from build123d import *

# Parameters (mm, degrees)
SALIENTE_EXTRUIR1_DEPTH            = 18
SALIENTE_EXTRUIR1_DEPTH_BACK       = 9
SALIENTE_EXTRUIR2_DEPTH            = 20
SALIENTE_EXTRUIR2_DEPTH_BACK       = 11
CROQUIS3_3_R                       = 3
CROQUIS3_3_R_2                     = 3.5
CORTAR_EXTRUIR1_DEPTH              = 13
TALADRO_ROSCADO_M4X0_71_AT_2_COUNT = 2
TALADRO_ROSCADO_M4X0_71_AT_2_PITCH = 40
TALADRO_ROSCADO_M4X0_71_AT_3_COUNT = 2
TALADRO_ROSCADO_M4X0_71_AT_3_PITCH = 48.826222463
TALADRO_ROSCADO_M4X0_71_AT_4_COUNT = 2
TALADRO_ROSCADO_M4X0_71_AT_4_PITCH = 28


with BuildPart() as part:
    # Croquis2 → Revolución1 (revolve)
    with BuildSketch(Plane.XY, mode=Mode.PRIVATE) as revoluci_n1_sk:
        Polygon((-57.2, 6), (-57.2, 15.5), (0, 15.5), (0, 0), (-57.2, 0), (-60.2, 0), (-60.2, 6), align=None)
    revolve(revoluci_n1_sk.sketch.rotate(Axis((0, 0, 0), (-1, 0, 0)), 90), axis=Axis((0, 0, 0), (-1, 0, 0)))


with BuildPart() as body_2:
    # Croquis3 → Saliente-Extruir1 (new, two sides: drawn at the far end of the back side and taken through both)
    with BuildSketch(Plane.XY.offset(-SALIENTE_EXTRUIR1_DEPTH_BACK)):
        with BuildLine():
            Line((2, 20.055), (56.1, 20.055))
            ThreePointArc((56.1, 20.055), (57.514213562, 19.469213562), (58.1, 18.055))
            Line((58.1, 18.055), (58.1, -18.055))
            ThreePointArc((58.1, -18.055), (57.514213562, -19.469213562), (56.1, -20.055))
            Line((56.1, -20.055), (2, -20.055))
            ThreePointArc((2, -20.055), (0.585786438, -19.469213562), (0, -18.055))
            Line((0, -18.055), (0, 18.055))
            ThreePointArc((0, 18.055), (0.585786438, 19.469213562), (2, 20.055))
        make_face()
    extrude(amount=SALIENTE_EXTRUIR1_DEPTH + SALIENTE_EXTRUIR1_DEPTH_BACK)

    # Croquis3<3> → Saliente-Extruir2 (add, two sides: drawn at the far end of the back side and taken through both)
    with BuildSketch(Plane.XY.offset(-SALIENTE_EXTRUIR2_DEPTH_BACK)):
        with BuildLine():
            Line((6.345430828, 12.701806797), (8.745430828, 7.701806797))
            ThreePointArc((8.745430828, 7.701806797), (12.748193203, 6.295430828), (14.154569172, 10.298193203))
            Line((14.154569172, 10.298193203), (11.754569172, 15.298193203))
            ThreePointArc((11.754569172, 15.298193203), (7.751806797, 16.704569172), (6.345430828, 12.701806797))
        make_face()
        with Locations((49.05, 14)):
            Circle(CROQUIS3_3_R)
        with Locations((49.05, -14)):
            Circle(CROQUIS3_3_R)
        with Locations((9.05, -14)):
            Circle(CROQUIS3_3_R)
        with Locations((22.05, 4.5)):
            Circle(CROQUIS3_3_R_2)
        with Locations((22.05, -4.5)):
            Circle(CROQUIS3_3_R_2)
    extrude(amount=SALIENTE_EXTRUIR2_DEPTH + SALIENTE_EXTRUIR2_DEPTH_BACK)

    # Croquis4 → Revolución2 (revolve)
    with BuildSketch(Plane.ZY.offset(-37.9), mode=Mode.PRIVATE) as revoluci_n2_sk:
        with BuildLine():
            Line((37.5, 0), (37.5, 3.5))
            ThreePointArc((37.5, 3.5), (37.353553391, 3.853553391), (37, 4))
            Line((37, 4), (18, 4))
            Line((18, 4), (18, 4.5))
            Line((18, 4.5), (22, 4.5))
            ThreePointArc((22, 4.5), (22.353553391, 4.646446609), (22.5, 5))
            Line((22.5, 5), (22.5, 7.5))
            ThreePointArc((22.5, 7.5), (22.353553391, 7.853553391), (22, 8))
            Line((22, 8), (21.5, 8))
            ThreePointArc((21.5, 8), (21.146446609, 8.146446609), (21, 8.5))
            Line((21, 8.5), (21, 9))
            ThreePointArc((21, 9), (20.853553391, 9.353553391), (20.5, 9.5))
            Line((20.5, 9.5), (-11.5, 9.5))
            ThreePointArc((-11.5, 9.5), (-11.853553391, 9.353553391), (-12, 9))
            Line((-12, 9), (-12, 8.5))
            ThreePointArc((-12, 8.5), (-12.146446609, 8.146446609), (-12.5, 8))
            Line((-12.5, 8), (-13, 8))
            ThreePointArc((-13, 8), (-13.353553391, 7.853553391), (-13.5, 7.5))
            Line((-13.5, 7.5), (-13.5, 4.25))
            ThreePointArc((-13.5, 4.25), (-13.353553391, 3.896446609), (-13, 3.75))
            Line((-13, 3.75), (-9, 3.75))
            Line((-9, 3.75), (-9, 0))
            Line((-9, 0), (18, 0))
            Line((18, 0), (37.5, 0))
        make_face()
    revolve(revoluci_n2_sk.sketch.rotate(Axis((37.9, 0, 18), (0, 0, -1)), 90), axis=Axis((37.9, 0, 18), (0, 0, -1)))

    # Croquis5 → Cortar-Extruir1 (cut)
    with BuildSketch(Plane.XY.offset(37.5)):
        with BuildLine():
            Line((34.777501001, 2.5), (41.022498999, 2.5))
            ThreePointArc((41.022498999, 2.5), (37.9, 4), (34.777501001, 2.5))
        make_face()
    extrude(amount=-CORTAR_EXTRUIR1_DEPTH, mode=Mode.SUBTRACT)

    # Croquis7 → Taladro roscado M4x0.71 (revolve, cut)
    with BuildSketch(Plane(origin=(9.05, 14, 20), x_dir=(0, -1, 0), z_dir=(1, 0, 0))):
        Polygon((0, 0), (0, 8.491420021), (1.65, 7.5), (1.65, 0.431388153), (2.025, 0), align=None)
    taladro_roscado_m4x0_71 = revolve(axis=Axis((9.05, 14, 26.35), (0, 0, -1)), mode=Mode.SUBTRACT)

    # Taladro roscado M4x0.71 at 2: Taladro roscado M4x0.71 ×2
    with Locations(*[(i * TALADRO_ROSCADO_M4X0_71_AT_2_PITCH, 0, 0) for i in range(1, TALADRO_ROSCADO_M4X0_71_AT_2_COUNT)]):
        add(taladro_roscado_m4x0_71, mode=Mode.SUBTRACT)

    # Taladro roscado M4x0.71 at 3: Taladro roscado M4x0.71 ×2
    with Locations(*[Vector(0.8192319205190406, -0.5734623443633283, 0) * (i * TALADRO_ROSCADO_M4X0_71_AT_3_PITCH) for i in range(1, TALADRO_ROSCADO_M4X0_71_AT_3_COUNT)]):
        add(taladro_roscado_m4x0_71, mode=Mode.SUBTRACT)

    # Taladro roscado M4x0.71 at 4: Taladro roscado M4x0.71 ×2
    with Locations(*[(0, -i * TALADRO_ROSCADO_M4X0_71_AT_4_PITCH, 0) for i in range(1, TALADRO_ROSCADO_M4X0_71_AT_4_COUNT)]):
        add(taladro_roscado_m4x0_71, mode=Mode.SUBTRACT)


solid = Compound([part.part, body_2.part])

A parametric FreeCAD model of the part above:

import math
import FreeCAD as App
import Part
import Sketcher
Q = App.Units.Quantity


def add_polygon(sketch, points):
    """Adds a closed chain of lines whose ends are joined by coincident constraints."""
    first, n = sketch.GeometryCount, len(points)
    for a, b in zip(points, points[1:] + points[:1]):
        sketch.addGeometry(Part.LineSegment(App.Vector(*a, 0), App.Vector(*b, 0)), False)
    for i in range(n):
        sketch.addConstraint(Sketcher.Constraint("Coincident", first + i, 2, first + (i + 1) % n, 1))

doc = App.newDocument("Part")
body = doc.addObject("PartDesign::Body", "Body")

# Sketch on XY plane
sketch1 = body.newObject("Sketcher::SketchObject", "Sketch")
sketch1.AttachmentSupport = (doc.getObject("XY_Plane"), [""])
sketch1.MapMode = "FlatFace"
add_polygon(sketch1, [(-57.2, 15.5), (-57.2, 6), (-60.2, 6), (-60.2, 0), (0, 0), (0, 15.5)])  # lines 0-5
sketch1.addConstraint([
    Sketcher.Constraint("Vertical", 0),
    Sketcher.Constraint("Horizontal", 1),
    Sketcher.Constraint("Vertical", 2),
    Sketcher.Constraint("Horizontal", 3),
    Sketcher.Constraint("Vertical", 4),
    Sketcher.Constraint("Horizontal", 5),
    Sketcher.Constraint("Coincident", 3, 2, -1, 1),
    Sketcher.Constraint("DistanceX", 1, 2, 1, 1, Q("3 mm")),
    Sketcher.Constraint("DistanceY", 2, 2, 2, 1, Q("6 mm")),
    Sketcher.Constraint("DistanceX", 3, 1, 3, 2, Q("60.2 mm")),
    Sketcher.Constraint("DistanceY", 0, 2, 0, 1, Q("9.5 mm")),
])
revolution = body.newObject("PartDesign::Revolution", "Revolution")
revolution.Profile = sketch1
revolution.ReferenceAxis = (sketch1, ["H_Axis"])
revolution.Angle = 360
body2 = doc.addObject("PartDesign::Body", "Body001")

# Sketch on XY plane
sketch2 = body2.newObject("Sketcher::SketchObject", "Sketch001")
sketch2.AttachmentSupport = (doc.getObject("XY_Plane001"), [""])
sketch2.MapMode = "FlatFace"
sketch2.addGeometry([
    Part.LineSegment(App.Vector(56.1, 20.1, 0), App.Vector(2, 20.1, 0)),  # 0
    Part.ArcOfCircle(Part.Circle(App.Vector(2, 18.1, 0), App.Vector(0, 0, 1), 2), math.radians(90), math.radians(180)),  # 1
    Part.LineSegment(App.Vector(0, 18.1, 0), App.Vector(0, -18.1, 0)),  # 2
    Part.ArcOfCircle(Part.Circle(App.Vector(2, -18.1, 0), App.Vector(0, 0, 1), 2), math.radians(-180), math.radians(-90)),  # 3
    Part.LineSegment(App.Vector(2, -20.1, 0), App.Vector(56.1, -20.1, 0)),  # 4
    Part.ArcOfCircle(Part.Circle(App.Vector(56.1, -18.1, 0), App.Vector(0, 0, 1), 2), math.radians(-90), math.radians(0)),  # 5
    Part.LineSegment(App.Vector(58.1, -18.1, 0), App.Vector(58.1, 18.1, 0)),  # 6
    Part.ArcOfCircle(Part.Circle(App.Vector(56.1, 18.1, 0), App.Vector(0, 0, 1), 2), math.radians(0), math.radians(90)),  # 7
], False)
sketch2.addConstraint([
    Sketcher.Constraint("Tangent", 0, 2, 1, 1),
    Sketcher.Constraint("Tangent", 1, 2, 2, 1),
    Sketcher.Constraint("Tangent", 2, 2, 3, 1),
    Sketcher.Constraint("Tangent", 3, 2, 4, 1),
    Sketcher.Constraint("Tangent", 4, 2, 5, 1),
    Sketcher.Constraint("Tangent", 5, 2, 6, 1),
    Sketcher.Constraint("Tangent", 6, 2, 7, 1),
    Sketcher.Constraint("Tangent", 7, 2, 0, 1),
    Sketcher.Constraint("Horizontal", 0),
    Sketcher.Constraint("Vertical", 2),
    Sketcher.Constraint("Horizontal", 4),
    Sketcher.Constraint("Vertical", 6),
    Sketcher.Constraint("Equal", 1, 3),
    Sketcher.Constraint("Equal", 3, 5),
    Sketcher.Constraint("Equal", 5, 7),
    Sketcher.Constraint("Symmetric", 1, 2, 2, 2, -1, 1),
    Sketcher.Constraint("Radius", 1, Q("2 mm")),
    Sketcher.Constraint("DistanceX", 0, 2, 0, 1, Q("54.1 mm")),
    Sketcher.Constraint("DistanceY", 2, 2, 2, 1, Q("36.11 mm")),
])
pad1 = body2.newObject("PartDesign::Pad", "Pad")
pad1.Profile = sketch2
pad1.Type = "TwoLengths"
pad1.Length = 18
pad1.Length2 = 9

# Sketch on XY plane
sketch3 = body2.newObject("Sketcher::SketchObject", "Sketch002")
sketch3.AttachmentSupport = (doc.getObject("XY_Plane001"), [""])
sketch3.MapMode = "FlatFace"
sketch3.addGeometry([
    Part.LineSegment(App.Vector(6.3, 12.7, 0), App.Vector(8.7, 7.7, 0)),  # 0
    Part.ArcOfCircle(Part.Circle(App.Vector(11.4, 9, 0), App.Vector(0, 0, 1), 3), math.radians(-154), math.radians(26)),  # 1
    Part.LineSegment(App.Vector(14.2, 10.3, 0), App.Vector(11.8, 15.3, 0)),  # 2
    Part.ArcOfCircle(Part.Circle(App.Vector(9.1, 14, 0), App.Vector(0, 0, 1), 3), math.radians(26), math.radians(206)),  # 3
    Part.Circle(App.Vector(49, 14, 0), App.Vector(0, 0, 1), 3),  # 4
    Part.Circle(App.Vector(49, -14, 0), App.Vector(0, 0, 1), 3),  # 5
    Part.Circle(App.Vector(9.1, -14, 0), App.Vector(0, 0, 1), 3),  # 6
    Part.Circle(App.Vector(22.1, 4.5, 0), App.Vector(0, 0, 1), 3.5),  # 7
    Part.Circle(App.Vector(22.1, -4.5, 0), App.Vector(0, 0, 1), 3.5),  # 8
], False)
sketch3.addConstraint([
    Sketcher.Constraint("Tangent", 0, 2, 1, 1),
    Sketcher.Constraint("Tangent", 1, 2, 2, 1),
    Sketcher.Constraint("Tangent", 2, 2, 3, 1),
    Sketcher.Constraint("Tangent", 3, 2, 0, 1),
    Sketcher.Constraint("Equal", 1, 3),
    Sketcher.Constraint("Equal", 3, 4),
    Sketcher.Constraint("Equal", 4, 5),
    Sketcher.Constraint("Equal", 5, 6),
    Sketcher.Constraint("Equal", 7, 8),
    Sketcher.Constraint("Symmetric", 4, 3, 5, 3, -1),
    Sketcher.Constraint("Symmetric", 3, 3, 6, 3, -1),
    Sketcher.Constraint("Symmetric", 7, 3, 8, 3, -1),
    Sketcher.Constraint("Horizontal", 3, 3, 4, 3),
    Sketcher.Constraint("Diameter", 4, Q("6 mm")),
    Sketcher.Constraint("Diameter", 7, Q("7 mm")),
    Sketcher.Constraint("DistanceY", -1, 1, 1, 3, Q("9 mm")),
    Sketcher.Constraint("DistanceY", -1, 1, 3, 3, Q("14 mm")),
    Sketcher.Constraint("DistanceX", 3, 3, 4, 3, Q("40 mm")),
    Sketcher.Constraint("DistanceX", 3, 3, 7, 3, Q("13 mm")),
    Sketcher.Constraint("DistanceY", 8, 3, 7, 3, Q("9 mm")),
    Sketcher.Constraint("DistanceX", 3, 3, 1, 3, Q("2.4 mm")),
    Sketcher.Constraint("DistanceX", -1, 1, 1, 3, Q("11.45 mm")),
])
pad2 = body2.newObject("PartDesign::Pad", "Pad001")
pad2.Profile = sketch3
pad2.Type = "TwoLengths"
pad2.Length = 20
pad2.Length2 = 11

# Sketch on YZ plane
sketch4 = body2.newObject("Sketcher::SketchObject", "Sketch003")
sketch4.AttachmentSupport = (doc.getObject("YZ_Plane001"), [""])
sketch4.MapMode = "FlatFace"
sketch4.AttachmentOffset = App.Placement(App.Vector(0, 0, 37.9), App.Rotation())
sketch4.addGeometry([
    Part.LineSegment(App.Vector(0, 37.5, 0), App.Vector(3.5, 37.5, 0)),  # 0
    Part.ArcOfCircle(Part.Circle(App.Vector(3.5, 37, 0), App.Vector(0, 0, 1), 0.5), math.radians(0), math.radians(90)),  # 1
    Part.LineSegment(App.Vector(4, 37, 0), App.Vector(4, 18, 0)),  # 2
    Part.LineSegment(App.Vector(4, 18, 0), App.Vector(4.5, 18, 0)),  # 3
    Part.LineSegment(App.Vector(4.5, 18, 0), App.Vector(4.5, 22, 0)),  # 4
    Part.ArcOfCircle(Part.Circle(App.Vector(5, 22, 0), App.Vector(0, 0, 1), 0.5), math.radians(90), math.radians(180)),  # 5
    Part.LineSegment(App.Vector(5, 22.5, 0), App.Vector(7.5, 22.5, 0)),  # 6
    Part.ArcOfCircle(Part.Circle(App.Vector(7.5, 22, 0), App.Vector(0, 0, 1), 0.5), math.radians(0), math.radians(90)),  # 7
    Part.LineSegment(App.Vector(8, 22, 0), App.Vector(8, 21.5, 0)),  # 8
    Part.ArcOfCircle(Part.Circle(App.Vector(8.5, 21.5, 0), App.Vector(0, 0, 1), 0.5), math.radians(180), math.radians(270)),  # 9
    Part.LineSegment(App.Vector(8.5, 21, 0), App.Vector(9, 21, 0)),  # 10
    Part.ArcOfCircle(Part.Circle(App.Vector(9, 20.5, 0), App.Vector(0, 0, 1), 0.5), math.radians(0), math.radians(90)),  # 11
    Part.LineSegment(App.Vector(9.5, 20.5, 0), App.Vector(9.5, -11.5, 0)),  # 12
    Part.ArcOfCircle(Part.Circle(App.Vector(9, -11.5, 0), App.Vector(0, 0, 1), 0.5), math.radians(-90), math.radians(0)),  # 13
    Part.LineSegment(App.Vector(9, -12, 0), App.Vector(8.5, -12, 0)),  # 14
    Part.ArcOfCircle(Part.Circle(App.Vector(8.5, -12.5, 0), App.Vector(0, 0, 1), 0.5), math.radians(90), math.radians(180)),  # 15
    Part.LineSegment(App.Vector(8, -12.5, 0), App.Vector(8, -13, 0)),  # 16
    Part.ArcOfCircle(Part.Circle(App.Vector(7.5, -13, 0), App.Vector(0, 0, 1), 0.5), math.radians(-90), math.radians(0)),  # 17
    Part.LineSegment(App.Vector(7.5, -13.5, 0), App.Vector(4.25, -13.5, 0)),  # 18
    Part.ArcOfCircle(Part.Circle(App.Vector(4.25, -13, 0), App.Vector(0, 0, 1), 0.5), math.radians(180), math.radians(270)),  # 19
    Part.LineSegment(App.Vector(3.75, -13, 0), App.Vector(3.75, -9, 0)),  # 20
    Part.LineSegment(App.Vector(3.75, -9, 0), App.Vector(0, -9, 0)),  # 21
    Part.LineSegment(App.Vector(0, -9, 0), App.Vector(0, 37.5, 0)),  # 22
], False)
sketch4.addConstraint([
    Sketcher.Constraint("Tangent", 0, 2, 1, 2),
    Sketcher.Constraint("Tangent", 1, 1, 2, 1),
    Sketcher.Constraint("Coincident", 2, 2, 3, 1),
    Sketcher.Constraint("Coincident", 3, 2, 4, 1),
    Sketcher.Constraint("Tangent", 4, 2, 5, 2),
    Sketcher.Constraint("Tangent", 5, 1, 6, 1),
    Sketcher.Constraint("Tangent", 6, 2, 7, 2),
    Sketcher.Constraint("Tangent", 7, 1, 8, 1),
    Sketcher.Constraint("Tangent", 8, 2, 9, 1),
    Sketcher.Constraint("Tangent", 9, 2, 10, 1),
    Sketcher.Constraint("Tangent", 10, 2, 11, 2),
    Sketcher.Constraint("Tangent", 11, 1, 12, 1),
    Sketcher.Constraint("Tangent", 12, 2, 13, 2),
    Sketcher.Constraint("Tangent", 13, 1, 14, 1),
    Sketcher.Constraint("Tangent", 14, 2, 15, 1),
    Sketcher.Constraint("Tangent", 15, 2, 16, 1),
    Sketcher.Constraint("Tangent", 16, 2, 17, 2),
    Sketcher.Constraint("Tangent", 17, 1, 18, 1),
    Sketcher.Constraint("Tangent", 18, 2, 19, 2),
    Sketcher.Constraint("Tangent", 19, 1, 20, 1),
    Sketcher.Constraint("Coincident", 20, 2, 21, 1),
    Sketcher.Constraint("Coincident", 21, 2, 22, 1),
    Sketcher.Constraint("Coincident", 22, 2, 0, 1),
    Sketcher.Constraint("Horizontal", 0),
    Sketcher.Constraint("Vertical", 2),
    Sketcher.Constraint("Horizontal", 3),
    Sketcher.Constraint("Vertical", 4),
    Sketcher.Constraint("Horizontal", 6),
    Sketcher.Constraint("Vertical", 8),
    Sketcher.Constraint("Horizontal", 10),
    Sketcher.Constraint("Vertical", 12),
    Sketcher.Constraint("Horizontal", 14),
    Sketcher.Constraint("Vertical", 16),
    Sketcher.Constraint("Horizontal", 18),
    Sketcher.Constraint("Vertical", 20),
    Sketcher.Constraint("Horizontal", 21),
    Sketcher.Constraint("Vertical", 22),
    Sketcher.Constraint("Equal", 1, 5),
    Sketcher.Constraint("Equal", 5, 7),
    Sketcher.Constraint("Equal", 7, 9),
    Sketcher.Constraint("Equal", 9, 11),
    Sketcher.Constraint("Equal", 11, 13),
    Sketcher.Constraint("Equal", 13, 15),
    Sketcher.Constraint("Equal", 15, 17),
    Sketcher.Constraint("Equal", 17, 19),
    Sketcher.Constraint("PointOnObject", 21, 2, -2),
    Sketcher.Constraint("Vertical", 9, 3, 15, 3),
    Sketcher.Constraint("Equal", 3, 10),
    Sketcher.Constraint("Equal", 14, 8),
    Sketcher.Constraint("Equal", 8, 16),
    Sketcher.Constraint("Equal", 4, 20),
    Sketcher.Constraint("Radius", 1, Q("0.5 mm")),
    Sketcher.Constraint("DistanceY", 2, 2, 2, 1, Q("19 mm")),
    Sketcher.Constraint("DistanceY", 4, 1, 4, 2, Q("4 mm")),
    Sketcher.Constraint("DistanceY", 12, 2, 12, 1, Q("32 mm")),
    Sketcher.Constraint("DistanceX", 0, 1, 0, 2, Q("3.5 mm")),
    Sketcher.Constraint("DistanceX", 3, 1, 3, 2, Q("0.5 mm")),
    Sketcher.Constraint("DistanceX", 6, 1, 6, 2, Q("2.5 mm")),
    Sketcher.Constraint("DistanceY", -1, 1, 1, 3, Q("37 mm")),
    Sketcher.Constraint("DistanceX", 18, 2, 18, 1, Q("3.25 mm")),
])
revolution2 = body2.newObject("PartDesign::Revolution", "Revolution001")
revolution2.Profile = sketch4
revolution2.ReferenceAxis = (sketch4, ["V_Axis"])
revolution2.Angle = 360

# Sketch on XY plane
sketch5 = body2.newObject("Sketcher::SketchObject", "Sketch004")
sketch5.AttachmentSupport = (doc.getObject("XY_Plane001"), [""])
sketch5.MapMode = "FlatFace"
sketch5.AttachmentOffset = App.Placement(App.Vector(0, 0, 37.5), App.Rotation())
sketch5.addGeometry([
    Part.LineSegment(App.Vector(34.8, 2.5, 0), App.Vector(41, 2.5, 0)),
    Part.ArcOfCircle(Part.Circle(App.Vector(37.9, 0, 0), App.Vector(0, 0, 1), 4), math.radians(39), math.radians(141)),
], False)
sketch5.addConstraint([
    Sketcher.Constraint("Coincident", 0, 1, 1, 2),
    Sketcher.Constraint("Coincident", 1, 1, 0, 2),
    Sketcher.Constraint("Horizontal", 0),
    Sketcher.Constraint("PointOnObject", 1, 3, -1),
    Sketcher.Constraint("Radius", 1, Q("4 mm")),
    Sketcher.Constraint("DistanceX", -1, 1, 1, 3, Q("37.9 mm")),
    Sketcher.Constraint("DistanceY", -1, 1, 0, 1, Q("2.5 mm")),
])
pocket1 = body2.newObject("PartDesign::Pocket", "Pocket")
pocket1.Profile = sketch5
pocket1.Length = 13

# Sketch on YZ plane
sketch6 = body2.newObject("Sketcher::SketchObject", "Sketch005")
sketch6.AttachmentSupport = (doc.getObject("YZ_Plane001"), [""])
sketch6.MapMode = "FlatFace"
sketch6.AttachmentOffset = App.Placement(App.Vector(0, 0, 9.05), App.Rotation())
add_polygon(sketch6, [(14, 11.5), (14, 20), (12, 20), (12.3, 19.6), (12.3, 12.5)])  # lines 0-4
sketch6.addGeometry(Part.LineSegment(App.Vector(14, 20, 0), App.Vector(14, 11.5, 0)), True)  # axis
sketch6.addConstraint([
    Sketcher.Constraint("Vertical", 0),
    Sketcher.Constraint("Horizontal", 1),
    Sketcher.Constraint("Vertical", 3),
    Sketcher.Constraint("Vertical", 5),
    Sketcher.Constraint("Coincident", 5, 1, 0, 2),
    Sketcher.Constraint("Equal", 0, 5),
    Sketcher.Constraint("Angle", 2, Q("-49 deg")),
    Sketcher.Constraint("Angle", 4, Q("-31 deg")),
    Sketcher.Constraint("DistanceX", -1, 1, 0, 2, Q("14 mm")),
    Sketcher.Constraint("DistanceY", -1, 1, 0, 2, Q("20 mm")),
    Sketcher.Constraint("DistanceY", -1, 1, 3, 2, Q("12.5 mm")),
    Sketcher.Constraint("DistanceX", 1, 2, 1, 1, Q("2.025 mm")),
    Sketcher.Constraint("DistanceX", -1, 1, 2, 2, Q("12.35 mm")),
])
groove = body2.newObject("PartDesign::Groove", "Groove")
groove.Profile = sketch6
groove.ReferenceAxis = (sketch6, ["Axis0"])
groove.Angle = 360
doc.recompute()

linearpattern = body2.newObject("PartDesign::LinearPattern", "LinearPattern")
linearpattern.Originals = [groove]
linearpattern.Direction = (doc.getObject("X_Axis001"), [""])
linearpattern.Mode = "offset"
linearpattern.Offset = 40
linearpattern.Occurrences = 2
body2.Tip = linearpattern
doc.recompute()

datumline = body2.newObject("PartDesign::Line", "DatumLine")
datumline.Placement = App.Placement(App.Vector(0, 0, 0), App.Rotation(App.Vector(0, 0, 1), App.Vector(0.819231921, -0.573462344, 0)))
linearpattern2 = body2.newObject("PartDesign::LinearPattern", "LinearPattern001")
linearpattern2.Originals = [groove]
linearpattern2.Direction = (datumline, [""])
linearpattern2.Mode = "offset"
linearpattern2.Offset = 48.826222
linearpattern2.Occurrences = 2
body2.Tip = linearpattern2
doc.recompute()

linearpattern3 = body2.newObject("PartDesign::LinearPattern", "LinearPattern002")
linearpattern3.Originals = [groove]
linearpattern3.Direction = (doc.getObject("Y_Axis001"), [""])
linearpattern3.Mode = "offset"
linearpattern3.Offset = 28
linearpattern3.Occurrences = 2
linearpattern3.Reversed = True
body2.Tip = linearpattern3

doc.recompute()
